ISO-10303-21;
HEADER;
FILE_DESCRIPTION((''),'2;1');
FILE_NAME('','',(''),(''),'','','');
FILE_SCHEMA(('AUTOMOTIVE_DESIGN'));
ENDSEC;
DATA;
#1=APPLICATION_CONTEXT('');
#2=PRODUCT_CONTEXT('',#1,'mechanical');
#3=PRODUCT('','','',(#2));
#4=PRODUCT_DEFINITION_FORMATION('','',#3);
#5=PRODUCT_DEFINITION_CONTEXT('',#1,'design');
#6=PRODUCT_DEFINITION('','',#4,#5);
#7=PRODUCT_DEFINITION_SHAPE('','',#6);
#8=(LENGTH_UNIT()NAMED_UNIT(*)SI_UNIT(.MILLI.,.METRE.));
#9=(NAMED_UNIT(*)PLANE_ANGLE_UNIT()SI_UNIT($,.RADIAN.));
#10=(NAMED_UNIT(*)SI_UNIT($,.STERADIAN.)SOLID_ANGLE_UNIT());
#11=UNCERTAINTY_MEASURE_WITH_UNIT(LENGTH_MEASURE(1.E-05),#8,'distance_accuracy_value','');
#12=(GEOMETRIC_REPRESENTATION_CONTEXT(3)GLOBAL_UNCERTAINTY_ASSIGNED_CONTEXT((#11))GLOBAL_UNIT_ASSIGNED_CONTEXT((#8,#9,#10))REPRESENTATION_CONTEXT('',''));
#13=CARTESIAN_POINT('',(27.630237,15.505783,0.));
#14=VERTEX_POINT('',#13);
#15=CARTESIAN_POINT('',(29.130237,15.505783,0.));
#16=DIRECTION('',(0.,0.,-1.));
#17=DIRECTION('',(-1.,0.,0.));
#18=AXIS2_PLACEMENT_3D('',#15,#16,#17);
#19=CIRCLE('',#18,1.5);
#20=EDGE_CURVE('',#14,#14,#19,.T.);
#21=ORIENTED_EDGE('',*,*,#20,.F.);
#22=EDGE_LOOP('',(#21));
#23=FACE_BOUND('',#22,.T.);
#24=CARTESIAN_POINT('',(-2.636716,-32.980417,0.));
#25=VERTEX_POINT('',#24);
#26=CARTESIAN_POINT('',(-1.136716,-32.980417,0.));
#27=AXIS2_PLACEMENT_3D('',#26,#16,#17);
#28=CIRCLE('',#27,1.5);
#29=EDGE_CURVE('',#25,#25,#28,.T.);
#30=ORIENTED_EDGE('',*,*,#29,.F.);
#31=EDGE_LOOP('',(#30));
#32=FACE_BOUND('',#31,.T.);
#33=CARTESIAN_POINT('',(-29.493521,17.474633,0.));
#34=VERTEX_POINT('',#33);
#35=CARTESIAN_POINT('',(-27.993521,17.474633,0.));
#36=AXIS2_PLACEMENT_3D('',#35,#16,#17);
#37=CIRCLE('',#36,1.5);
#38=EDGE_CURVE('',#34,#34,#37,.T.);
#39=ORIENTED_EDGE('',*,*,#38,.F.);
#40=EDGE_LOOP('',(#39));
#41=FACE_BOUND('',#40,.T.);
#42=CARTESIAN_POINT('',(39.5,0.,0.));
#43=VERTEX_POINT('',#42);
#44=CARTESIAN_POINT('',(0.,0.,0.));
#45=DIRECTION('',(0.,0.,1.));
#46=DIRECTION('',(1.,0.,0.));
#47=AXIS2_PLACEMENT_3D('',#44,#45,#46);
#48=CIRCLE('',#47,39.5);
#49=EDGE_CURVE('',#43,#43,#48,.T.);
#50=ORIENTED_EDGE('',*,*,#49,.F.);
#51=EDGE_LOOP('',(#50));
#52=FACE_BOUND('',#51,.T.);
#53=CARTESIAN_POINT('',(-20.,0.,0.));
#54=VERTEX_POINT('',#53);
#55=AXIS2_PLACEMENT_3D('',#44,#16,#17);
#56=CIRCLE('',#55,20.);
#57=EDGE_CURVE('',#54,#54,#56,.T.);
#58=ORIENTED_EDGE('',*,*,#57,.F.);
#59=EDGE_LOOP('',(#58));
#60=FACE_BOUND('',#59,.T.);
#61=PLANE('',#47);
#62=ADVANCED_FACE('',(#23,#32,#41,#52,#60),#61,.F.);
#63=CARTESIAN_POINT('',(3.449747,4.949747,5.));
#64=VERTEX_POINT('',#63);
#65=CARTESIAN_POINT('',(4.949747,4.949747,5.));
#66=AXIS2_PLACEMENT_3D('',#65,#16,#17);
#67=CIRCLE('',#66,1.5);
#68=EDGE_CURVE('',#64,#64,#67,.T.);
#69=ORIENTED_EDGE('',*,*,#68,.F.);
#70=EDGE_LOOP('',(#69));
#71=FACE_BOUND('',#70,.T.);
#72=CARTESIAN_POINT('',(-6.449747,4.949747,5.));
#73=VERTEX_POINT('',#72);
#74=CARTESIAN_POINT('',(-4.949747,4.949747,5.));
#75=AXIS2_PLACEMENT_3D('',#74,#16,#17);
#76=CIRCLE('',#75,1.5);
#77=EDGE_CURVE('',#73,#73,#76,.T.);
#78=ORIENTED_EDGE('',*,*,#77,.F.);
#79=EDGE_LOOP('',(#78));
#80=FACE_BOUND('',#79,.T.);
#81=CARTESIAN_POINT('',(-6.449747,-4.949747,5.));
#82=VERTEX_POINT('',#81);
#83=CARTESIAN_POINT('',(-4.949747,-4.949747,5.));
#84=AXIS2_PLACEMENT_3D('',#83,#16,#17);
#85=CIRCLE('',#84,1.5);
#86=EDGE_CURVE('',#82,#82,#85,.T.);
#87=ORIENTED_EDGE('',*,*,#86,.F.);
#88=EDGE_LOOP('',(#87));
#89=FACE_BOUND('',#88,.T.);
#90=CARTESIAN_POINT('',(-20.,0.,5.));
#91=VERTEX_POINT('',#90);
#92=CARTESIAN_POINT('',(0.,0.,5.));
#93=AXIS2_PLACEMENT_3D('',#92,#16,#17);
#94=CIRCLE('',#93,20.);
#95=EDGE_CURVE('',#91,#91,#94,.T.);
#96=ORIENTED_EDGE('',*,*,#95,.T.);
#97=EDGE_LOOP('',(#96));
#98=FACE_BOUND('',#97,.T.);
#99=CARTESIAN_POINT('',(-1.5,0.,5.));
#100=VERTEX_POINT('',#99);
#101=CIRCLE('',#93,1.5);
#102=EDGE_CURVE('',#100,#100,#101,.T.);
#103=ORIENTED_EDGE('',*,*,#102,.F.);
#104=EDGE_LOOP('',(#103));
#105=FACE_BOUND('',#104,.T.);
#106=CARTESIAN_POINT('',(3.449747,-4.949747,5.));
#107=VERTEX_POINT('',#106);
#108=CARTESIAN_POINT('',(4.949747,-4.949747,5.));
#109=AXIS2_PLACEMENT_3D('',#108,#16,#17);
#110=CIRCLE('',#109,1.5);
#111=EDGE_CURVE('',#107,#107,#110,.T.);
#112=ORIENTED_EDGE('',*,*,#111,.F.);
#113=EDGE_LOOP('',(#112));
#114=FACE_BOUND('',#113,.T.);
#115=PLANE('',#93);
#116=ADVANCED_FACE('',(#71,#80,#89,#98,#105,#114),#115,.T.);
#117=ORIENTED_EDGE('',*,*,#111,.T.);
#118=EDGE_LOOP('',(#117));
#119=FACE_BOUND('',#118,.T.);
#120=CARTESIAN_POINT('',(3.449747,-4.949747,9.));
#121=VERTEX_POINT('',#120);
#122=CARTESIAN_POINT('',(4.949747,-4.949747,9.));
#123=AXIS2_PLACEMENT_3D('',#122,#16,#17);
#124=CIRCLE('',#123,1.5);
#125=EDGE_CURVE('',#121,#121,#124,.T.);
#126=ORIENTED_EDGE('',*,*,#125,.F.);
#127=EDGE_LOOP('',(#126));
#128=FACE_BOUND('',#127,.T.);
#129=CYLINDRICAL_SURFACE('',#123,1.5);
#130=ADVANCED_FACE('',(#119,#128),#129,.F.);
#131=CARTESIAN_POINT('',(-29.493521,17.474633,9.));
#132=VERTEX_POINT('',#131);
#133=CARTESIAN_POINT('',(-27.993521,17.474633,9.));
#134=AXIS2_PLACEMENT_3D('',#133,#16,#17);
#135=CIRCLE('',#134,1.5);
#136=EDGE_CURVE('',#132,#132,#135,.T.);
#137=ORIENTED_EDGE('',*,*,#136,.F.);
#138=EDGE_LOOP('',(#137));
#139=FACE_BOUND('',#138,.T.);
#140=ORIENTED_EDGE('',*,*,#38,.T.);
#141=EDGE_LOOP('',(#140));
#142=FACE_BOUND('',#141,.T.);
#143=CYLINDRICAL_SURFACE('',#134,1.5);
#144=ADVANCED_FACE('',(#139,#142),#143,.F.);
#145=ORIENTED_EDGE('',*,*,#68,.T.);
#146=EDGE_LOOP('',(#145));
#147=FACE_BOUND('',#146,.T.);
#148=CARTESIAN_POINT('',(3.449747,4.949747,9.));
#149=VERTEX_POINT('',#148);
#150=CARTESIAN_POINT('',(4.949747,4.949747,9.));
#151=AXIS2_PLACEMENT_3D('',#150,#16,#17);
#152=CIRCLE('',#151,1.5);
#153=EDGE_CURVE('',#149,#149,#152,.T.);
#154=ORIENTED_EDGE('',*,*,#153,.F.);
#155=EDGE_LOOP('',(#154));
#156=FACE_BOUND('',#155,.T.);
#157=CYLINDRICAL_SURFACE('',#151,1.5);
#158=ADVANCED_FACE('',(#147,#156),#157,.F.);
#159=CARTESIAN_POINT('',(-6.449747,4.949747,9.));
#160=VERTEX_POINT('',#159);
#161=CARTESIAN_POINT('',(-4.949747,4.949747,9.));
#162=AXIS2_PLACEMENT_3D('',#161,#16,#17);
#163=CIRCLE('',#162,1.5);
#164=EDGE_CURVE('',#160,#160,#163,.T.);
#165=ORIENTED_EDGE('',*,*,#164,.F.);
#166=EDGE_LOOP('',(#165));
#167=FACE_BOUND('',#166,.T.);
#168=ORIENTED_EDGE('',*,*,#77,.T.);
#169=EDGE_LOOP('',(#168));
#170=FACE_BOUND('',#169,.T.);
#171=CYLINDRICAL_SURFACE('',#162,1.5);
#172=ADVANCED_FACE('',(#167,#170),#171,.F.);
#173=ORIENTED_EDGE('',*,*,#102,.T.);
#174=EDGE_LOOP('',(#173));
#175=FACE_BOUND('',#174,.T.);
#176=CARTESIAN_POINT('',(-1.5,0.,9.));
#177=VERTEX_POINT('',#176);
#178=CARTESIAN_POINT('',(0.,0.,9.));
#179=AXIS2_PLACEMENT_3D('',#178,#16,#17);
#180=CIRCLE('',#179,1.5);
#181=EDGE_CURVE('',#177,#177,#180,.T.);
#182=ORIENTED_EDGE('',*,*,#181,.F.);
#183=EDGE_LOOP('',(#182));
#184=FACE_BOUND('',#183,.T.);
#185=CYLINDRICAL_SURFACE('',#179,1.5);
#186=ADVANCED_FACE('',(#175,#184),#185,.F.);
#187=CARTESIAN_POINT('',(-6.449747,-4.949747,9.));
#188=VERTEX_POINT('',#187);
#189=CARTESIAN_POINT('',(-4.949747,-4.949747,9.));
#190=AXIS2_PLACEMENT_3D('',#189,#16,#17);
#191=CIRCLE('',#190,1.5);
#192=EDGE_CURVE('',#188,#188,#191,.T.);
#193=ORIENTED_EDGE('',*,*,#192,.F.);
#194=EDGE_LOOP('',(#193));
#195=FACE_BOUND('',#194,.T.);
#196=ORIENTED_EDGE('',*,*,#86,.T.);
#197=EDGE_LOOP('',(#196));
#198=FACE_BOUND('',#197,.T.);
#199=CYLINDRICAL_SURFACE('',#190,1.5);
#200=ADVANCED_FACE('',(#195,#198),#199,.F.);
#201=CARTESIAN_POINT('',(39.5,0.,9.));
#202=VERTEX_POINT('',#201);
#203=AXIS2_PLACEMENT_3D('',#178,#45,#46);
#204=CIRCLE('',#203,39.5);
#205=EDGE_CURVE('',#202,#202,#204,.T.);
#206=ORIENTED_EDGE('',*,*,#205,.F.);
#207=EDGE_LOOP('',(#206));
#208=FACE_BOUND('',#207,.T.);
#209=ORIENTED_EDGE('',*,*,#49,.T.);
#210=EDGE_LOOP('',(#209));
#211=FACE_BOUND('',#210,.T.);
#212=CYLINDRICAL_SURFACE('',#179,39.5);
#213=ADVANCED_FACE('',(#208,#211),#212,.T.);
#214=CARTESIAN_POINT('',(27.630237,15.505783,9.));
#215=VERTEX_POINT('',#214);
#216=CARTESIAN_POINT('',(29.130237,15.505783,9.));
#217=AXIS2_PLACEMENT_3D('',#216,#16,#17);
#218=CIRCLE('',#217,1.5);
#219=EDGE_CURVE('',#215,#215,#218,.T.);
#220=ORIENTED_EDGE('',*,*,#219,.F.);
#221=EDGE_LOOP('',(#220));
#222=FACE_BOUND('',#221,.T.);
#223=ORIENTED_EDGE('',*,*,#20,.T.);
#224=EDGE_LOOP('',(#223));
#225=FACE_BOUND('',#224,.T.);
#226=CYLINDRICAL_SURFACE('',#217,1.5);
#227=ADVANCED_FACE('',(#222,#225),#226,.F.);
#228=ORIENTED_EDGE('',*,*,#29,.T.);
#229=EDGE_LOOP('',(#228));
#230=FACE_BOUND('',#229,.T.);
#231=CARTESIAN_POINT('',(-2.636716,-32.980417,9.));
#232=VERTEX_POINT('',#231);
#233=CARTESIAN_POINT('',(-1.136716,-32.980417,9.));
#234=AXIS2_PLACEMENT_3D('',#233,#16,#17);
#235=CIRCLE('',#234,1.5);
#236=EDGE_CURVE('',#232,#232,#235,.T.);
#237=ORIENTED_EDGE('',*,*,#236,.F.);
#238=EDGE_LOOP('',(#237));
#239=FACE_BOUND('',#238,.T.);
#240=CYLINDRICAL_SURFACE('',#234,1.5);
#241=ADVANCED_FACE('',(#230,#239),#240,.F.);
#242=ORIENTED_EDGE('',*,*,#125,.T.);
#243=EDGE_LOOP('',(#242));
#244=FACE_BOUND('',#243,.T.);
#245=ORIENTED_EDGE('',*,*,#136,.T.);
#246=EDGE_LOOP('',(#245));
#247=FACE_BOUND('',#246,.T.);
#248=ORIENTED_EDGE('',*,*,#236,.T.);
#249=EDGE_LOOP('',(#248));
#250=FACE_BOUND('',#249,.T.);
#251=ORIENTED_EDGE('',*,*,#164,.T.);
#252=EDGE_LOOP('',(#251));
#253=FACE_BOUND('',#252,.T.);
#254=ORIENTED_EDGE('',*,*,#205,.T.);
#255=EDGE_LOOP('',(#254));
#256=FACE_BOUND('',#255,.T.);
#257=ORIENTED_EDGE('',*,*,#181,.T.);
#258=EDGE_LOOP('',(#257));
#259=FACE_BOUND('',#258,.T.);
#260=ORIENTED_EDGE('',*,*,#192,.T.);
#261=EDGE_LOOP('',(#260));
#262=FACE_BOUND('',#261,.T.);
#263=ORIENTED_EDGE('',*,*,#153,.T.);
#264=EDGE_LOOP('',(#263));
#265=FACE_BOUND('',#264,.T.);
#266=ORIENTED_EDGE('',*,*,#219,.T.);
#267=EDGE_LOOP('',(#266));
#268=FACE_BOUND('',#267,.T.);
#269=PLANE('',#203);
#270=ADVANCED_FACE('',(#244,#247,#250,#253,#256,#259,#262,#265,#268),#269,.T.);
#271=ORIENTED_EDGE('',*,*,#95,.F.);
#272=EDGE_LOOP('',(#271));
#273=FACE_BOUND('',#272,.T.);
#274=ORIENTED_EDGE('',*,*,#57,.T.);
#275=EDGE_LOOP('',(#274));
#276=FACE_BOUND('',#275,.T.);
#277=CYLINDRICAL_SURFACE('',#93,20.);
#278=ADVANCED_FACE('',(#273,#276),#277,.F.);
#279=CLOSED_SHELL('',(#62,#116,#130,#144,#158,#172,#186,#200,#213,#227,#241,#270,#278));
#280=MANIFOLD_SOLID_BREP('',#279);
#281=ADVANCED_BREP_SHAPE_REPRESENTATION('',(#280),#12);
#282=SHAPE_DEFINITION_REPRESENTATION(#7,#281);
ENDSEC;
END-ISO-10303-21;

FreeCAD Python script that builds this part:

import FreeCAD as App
import Part
import Sketcher

V = App.Vector
Q = App.Units.Quantity

doc = App.newDocument("Part")
body = doc.addObject("PartDesign::Body", "Body")

# Sketch on XY plane
sketch1 = doc.addObject("Sketcher::SketchObject", "Sketch")
body.addObject(sketch1)
sketch1.AttachmentSupport = (doc.XY_Plane, [""])
sketch1.MapMode = "FlatFace"
sketch1.addGeometry(Part.Circle(V(0, 0, 0), V(0, 0, 1), 40), False)
sketch1.addConstraint([
    Sketcher.Constraint("Coincident", 0, 3, -1, 1),
    Sketcher.Constraint("Diameter", 0, Q("79 mm")),
])
pad1 = doc.addObject("PartDesign::Pad", "Pad")
body.addObject(pad1)
pad1.Profile = sketch1
pad1.Length = 9

# Sketch on XY plane
sketch2 = doc.addObject("Sketcher::SketchObject", "Sketch001")
body.addObject(sketch2)
sketch2.AttachmentSupport = (doc.XY_Plane, [""])
sketch2.MapMode = "FlatFace"
sketch2.addGeometry(Part.Circle(V(0, 0, 0), V(0, 0, 1), 20), False)
sketch2.addConstraint([
    Sketcher.Constraint("Coincident", 0, 3, -1, 1),
    Sketcher.Constraint("Diameter", 0, Q("40 mm")),
])
pocket1 = doc.addObject("PartDesign::Pocket", "Pocket")
body.addObject(pocket1)
pocket1.Profile = sketch2
pocket1.Length = 5
pocket1.Reversed = True

# Sketch on XY plane
sketch3 = doc.addObject("Sketcher::SketchObject", "Sketch002")
body.addObject(sketch3)
sketch3.AttachmentSupport = (doc.XY_Plane, [""])
sketch3.MapMode = "FlatFace"
sketch3.addGeometry([
    Part.Circle(V(-1.1, -33, 0), V(0, 0, 1), 1.5),
    Part.Circle(V(29.1, 15.5, 0), V(0, 0, 1), 1.5),
    Part.Circle(V(-28, 17.5, 0), V(0, 0, 1), 1.5),
], False)
sketch3.addConstraint([
    Sketcher.Constraint("Equal", 0, 1),
    Sketcher.Constraint("Equal", 1, 2),
    Sketcher.Constraint("Diameter", 0, Q("3 mm")),
    Sketcher.Constraint("DistanceY", 0, 3, 1, 3, Q("48.4862 mm")),
    Sketcher.Constraint("DistanceX", 2, 3, -1, 1, Q("27.993521 mm")),
    Sketcher.Constraint("DistanceY", 1, 3, 2, 3, Q("1.96885 mm")),
    Sketcher.Constraint("DistanceX", 0, 3, -1, 1, Q("1.136716 mm")),
    Sketcher.Constraint("DistanceY", 0, 3, -1, 1, Q("32.980417 mm")),
    Sketcher.Constraint("DistanceX", -1, 1, 1, 3, Q("29.130237 mm")),
])
pocket2 = doc.addObject("PartDesign::Pocket", "Pocket001")
body.addObject(pocket2)
pocket2.Profile = sketch3
pocket2.Type = "ThroughAll"
pocket2.Reversed = True

# Sketch on XY plane
sketch4 = doc.addObject("Sketcher::SketchObject", "Sketch003")
body.addObject(sketch4)
sketch4.AttachmentSupport = (doc.XY_Plane, [""])
sketch4.MapMode = "FlatFace"
sketch4.AttachmentOffset = App.Placement(V(0, 0, 5), App.Rotation())
sketch4.addGeometry([
    Part.Circle(V(0, 0, 0), V(0, 0, 1), 1.5),  # 0
    Part.Circle(V(4.9, 4.9, 0), V(0, 0, 1), 1.5),  # 1
    Part.Circle(V(-4.9, 4.9, 0), V(0, 0, 1), 1.5),  # 2
    Part.Circle(V(-4.9, -4.9, 0), V(0, 0, 1), 1.5),  # 3
    Part.Circle(V(4.9, -4.9, 0), V(0, 0, 1), 1.5),  # 4
], False)
sketch4.addConstraint([
    Sketcher.Constraint("Coincident", 0, 3, -1, 1),
    Sketcher.Constraint("Equal", 0, 1),
    Sketcher.Constraint("Equal", 1, 2),
    Sketcher.Constraint("Equal", 2, 3),
    Sketcher.Constraint("Equal", 3, 4),
    Sketcher.Constraint("Symmetric", 1, 3, 3, 3, -1, 1),
    Sketcher.Constraint("Symmetric", 2, 3, 4, 3, -1, 1),
    Sketcher.Constraint("Symmetric", 1, 3, 2, 3, -2),
    Sketcher.Constraint("Diameter", 0, Q("3 mm")),
    Sketcher.Constraint("DistanceX", -1, 1, 1, 3, Q("4.949747 mm")),
    Sketcher.Constraint("DistanceY", -1, 1, 1, 3, Q("4.949747 mm")),
])
pocket3 = doc.addObject("PartDesign::Pocket", "Pocket002")
body.addObject(pocket3)
pocket3.Profile = sketch4
pocket3.Type = "ThroughAll"
pocket3.Reversed = True

doc.recompute()
